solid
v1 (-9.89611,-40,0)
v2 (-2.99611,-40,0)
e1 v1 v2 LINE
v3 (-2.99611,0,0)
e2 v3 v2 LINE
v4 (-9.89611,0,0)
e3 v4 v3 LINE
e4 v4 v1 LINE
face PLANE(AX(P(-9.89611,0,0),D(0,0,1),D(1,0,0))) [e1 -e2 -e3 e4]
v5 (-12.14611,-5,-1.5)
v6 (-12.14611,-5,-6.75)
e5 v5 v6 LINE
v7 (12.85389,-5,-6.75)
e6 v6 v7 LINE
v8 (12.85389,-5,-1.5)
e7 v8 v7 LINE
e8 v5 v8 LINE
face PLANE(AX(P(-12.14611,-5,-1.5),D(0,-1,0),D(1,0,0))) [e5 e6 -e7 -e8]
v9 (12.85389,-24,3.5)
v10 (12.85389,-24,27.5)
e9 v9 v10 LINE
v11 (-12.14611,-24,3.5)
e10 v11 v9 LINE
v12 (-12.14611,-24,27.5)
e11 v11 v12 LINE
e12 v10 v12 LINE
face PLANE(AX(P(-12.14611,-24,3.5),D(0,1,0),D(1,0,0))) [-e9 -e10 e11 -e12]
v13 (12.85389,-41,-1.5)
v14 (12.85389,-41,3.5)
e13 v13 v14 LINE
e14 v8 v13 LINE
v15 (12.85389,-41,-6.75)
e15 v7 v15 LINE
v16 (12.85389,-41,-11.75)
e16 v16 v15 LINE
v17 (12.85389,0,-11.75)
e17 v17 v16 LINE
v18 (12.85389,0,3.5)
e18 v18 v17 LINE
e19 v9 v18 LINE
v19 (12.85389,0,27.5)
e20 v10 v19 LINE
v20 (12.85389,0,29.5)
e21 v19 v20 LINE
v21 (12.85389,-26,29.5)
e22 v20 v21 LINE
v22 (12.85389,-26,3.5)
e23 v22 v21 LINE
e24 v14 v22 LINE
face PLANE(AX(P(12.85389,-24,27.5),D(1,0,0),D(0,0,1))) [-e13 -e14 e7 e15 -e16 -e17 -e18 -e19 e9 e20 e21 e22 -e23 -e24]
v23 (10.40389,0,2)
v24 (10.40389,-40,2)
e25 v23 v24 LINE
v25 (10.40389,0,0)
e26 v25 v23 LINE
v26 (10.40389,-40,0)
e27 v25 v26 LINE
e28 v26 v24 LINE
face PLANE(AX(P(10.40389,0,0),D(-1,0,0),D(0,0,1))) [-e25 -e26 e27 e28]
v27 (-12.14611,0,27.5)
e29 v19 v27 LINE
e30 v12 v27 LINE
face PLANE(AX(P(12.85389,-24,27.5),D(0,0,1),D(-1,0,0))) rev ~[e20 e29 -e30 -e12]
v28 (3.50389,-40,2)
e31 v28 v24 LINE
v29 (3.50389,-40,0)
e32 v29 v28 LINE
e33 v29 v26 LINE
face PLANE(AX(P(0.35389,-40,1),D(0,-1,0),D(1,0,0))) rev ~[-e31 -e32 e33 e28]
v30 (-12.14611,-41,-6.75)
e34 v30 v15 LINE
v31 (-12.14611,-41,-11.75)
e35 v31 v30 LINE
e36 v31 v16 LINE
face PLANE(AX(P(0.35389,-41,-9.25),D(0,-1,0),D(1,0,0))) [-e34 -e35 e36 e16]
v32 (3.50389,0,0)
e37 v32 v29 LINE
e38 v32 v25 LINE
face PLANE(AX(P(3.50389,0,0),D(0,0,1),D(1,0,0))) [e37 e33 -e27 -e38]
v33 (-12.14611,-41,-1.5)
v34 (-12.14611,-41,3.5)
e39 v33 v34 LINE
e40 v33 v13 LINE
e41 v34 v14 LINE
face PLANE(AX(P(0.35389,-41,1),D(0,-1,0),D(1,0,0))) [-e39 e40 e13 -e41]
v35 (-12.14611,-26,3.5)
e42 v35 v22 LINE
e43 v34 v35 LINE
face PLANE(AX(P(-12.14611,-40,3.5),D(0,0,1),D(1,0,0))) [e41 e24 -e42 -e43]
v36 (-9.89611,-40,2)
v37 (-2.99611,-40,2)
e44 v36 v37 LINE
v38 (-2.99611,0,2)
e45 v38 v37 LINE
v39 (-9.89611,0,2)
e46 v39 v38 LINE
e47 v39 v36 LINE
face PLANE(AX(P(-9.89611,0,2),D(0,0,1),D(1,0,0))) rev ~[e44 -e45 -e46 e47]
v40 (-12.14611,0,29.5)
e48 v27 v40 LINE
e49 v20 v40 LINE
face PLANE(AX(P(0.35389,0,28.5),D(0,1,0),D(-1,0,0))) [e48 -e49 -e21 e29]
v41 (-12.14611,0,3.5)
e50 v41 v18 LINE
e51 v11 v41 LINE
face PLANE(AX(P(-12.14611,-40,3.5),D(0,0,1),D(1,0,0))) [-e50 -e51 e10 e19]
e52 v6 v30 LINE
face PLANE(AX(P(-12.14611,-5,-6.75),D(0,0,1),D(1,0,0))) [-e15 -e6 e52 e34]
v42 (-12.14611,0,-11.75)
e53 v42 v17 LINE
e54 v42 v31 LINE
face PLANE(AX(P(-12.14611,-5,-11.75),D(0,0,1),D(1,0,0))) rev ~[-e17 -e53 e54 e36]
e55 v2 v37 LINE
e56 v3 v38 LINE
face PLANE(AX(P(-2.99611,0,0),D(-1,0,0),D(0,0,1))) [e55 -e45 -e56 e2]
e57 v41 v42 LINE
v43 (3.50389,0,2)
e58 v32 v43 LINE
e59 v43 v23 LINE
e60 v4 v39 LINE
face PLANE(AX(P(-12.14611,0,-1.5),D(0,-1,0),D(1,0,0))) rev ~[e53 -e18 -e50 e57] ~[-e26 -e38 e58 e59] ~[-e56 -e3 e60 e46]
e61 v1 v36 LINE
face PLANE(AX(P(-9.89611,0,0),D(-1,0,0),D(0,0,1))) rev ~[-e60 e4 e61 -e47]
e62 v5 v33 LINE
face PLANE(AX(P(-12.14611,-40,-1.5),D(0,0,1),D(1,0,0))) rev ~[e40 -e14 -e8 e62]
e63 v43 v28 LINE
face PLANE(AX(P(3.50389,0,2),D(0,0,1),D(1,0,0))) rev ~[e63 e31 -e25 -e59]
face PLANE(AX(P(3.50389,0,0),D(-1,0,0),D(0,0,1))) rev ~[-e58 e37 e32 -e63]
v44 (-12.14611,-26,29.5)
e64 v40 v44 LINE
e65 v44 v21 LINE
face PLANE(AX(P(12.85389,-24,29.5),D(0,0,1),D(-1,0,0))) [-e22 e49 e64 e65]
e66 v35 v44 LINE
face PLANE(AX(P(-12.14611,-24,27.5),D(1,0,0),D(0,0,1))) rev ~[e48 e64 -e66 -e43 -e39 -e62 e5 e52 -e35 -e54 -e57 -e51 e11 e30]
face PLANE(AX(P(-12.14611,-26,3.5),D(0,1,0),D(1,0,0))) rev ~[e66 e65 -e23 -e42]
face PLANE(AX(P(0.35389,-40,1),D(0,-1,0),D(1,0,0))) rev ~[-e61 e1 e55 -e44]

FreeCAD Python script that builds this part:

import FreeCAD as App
import Part
import Sketcher
from FreeCAD import Vector
Q = App.Units.Quantity


def add_polygon(sketch, points):
    """Adds a closed chain of lines whose ends are joined by coincident constraints."""
    first, n = sketch.GeometryCount, len(points)
    for a, b in zip(points, points[1:] + points[:1]):
        sketch.addGeometry(Part.LineSegment(App.Vector(*a, 0), App.Vector(*b, 0)), False)
    for i in range(n):
        sketch.addConstraint(Sketcher.Constraint("Coincident", first + i, 2, first + (i + 1) % n, 1))

doc = App.newDocument("Part")
body = doc.addObject("PartDesign::Body", "Body")

sketch1 = body.newObject("Sketcher::SketchObject", "Sketch")
sketch1.AttachmentSupport = (doc.getObject("XZ_Plane"), [""])
sketch1.MapMode = "FlatFace"
add_polygon(sketch1, [(-12.1, 3.5), (-12.1, -1.5), (12.9, -1.5), (12.9, 3.5)])
add_polygon(sketch1, [(-3, 0), (-9.9, 0), (-9.9, 2), (-3, 2)])
add_polygon(sketch1, [(10.4, 0), (3.5, 0), (3.5, 2), (10.4, 2)])
sketch1.addConstraint(Sketcher.Constraint("Vertical", 0))
sketch1.addConstraint(Sketcher.Constraint("Horizontal", 1))
sketch1.addConstraint(Sketcher.Constraint("Vertical", 2))
sketch1.addConstraint(Sketcher.Constraint("Horizontal", 3))
sketch1.addConstraint(Sketcher.Constraint("Horizontal", 4))
sketch1.addConstraint(Sketcher.Constraint("Vertical", 5))
sketch1.addConstraint(Sketcher.Constraint("Horizontal", 6))
sketch1.addConstraint(Sketcher.Constraint("Vertical", 7))
sketch1.addConstraint(Sketcher.Constraint("Horizontal", 8))
sketch1.addConstraint(Sketcher.Constraint("Vertical", 9))
sketch1.addConstraint(Sketcher.Constraint("Horizontal", 10))
sketch1.addConstraint(Sketcher.Constraint("Vertical", 11))
sketch1.addConstraint(Sketcher.Constraint("PointOnObject", 4, 2, -1))
sketch1.addConstraint(Sketcher.Constraint("PointOnObject", 8, 2, -1))
sketch1.addConstraint(Sketcher.Constraint("Horizontal", 6, 2, 9, 2))
sketch1.addConstraint(Sketcher.Constraint("Equal", 6, 8))
sketch1.addConstraint(Sketcher.Constraint("DistanceX", 1, 1, 1, 2, Q("25 mm")))
sketch1.addConstraint(Sketcher.Constraint("DistanceY", 0, 2, 0, 1, Q("5 mm")))
sketch1.addConstraint(Sketcher.Constraint("DistanceY", 5, 1, 5, 2, Q("2 mm")))
sketch1.addConstraint(Sketcher.Constraint("DistanceX", 4, 2, 4, 1, Q("6.9 mm")))
sketch1.addConstraint(Sketcher.Constraint("DistanceY", 0, 2, -1, 1, Q("1.5 mm")))
sketch1.addConstraint(Sketcher.Constraint("DistanceX", 7, 2, 8, 2, Q("6.5 mm")))
sketch1.addConstraint(Sketcher.Constraint("DistanceX", 0, 2, 4, 2, Q("2.25 mm")))
sketch1.addConstraint(Sketcher.Constraint("DistanceX", 0, 2, -1, 1, Q("12.14611 mm")))
pad1 = body.newObject("PartDesign::Pad", "Pad")
pad1.Profile = sketch1
pad1.Length = 40

sketch2 = body.newObject("Sketcher::SketchObject", "Sketch001")
sketch2.AttachmentSupport = (doc.getObject("XZ_Plane"), [""])
sketch2.MapMode = "FlatFace"
sketch2.AttachmentOffset = App.Placement(Vector(0, 0, 40), App.Rotation())
add_polygon(sketch2, [(-12, 4), (-12, -2), (13, -2), (13, 4)])
sketch2.addConstraint(Sketcher.Constraint("Vertical", 0))
sketch2.addConstraint(Sketcher.Constraint("Horizontal", 1))
sketch2.addConstraint(Sketcher.Constraint("Vertical", 2))
sketch2.addConstraint(Sketcher.Constraint("Horizontal", 3))
sketch2.addConstraint(Sketcher.Constraint("DistanceX", 1, 1, 1, 2, Q("25 mm")))
sketch2.addConstraint(Sketcher.Constraint("DistanceY", 0, 2, 0, 1, Q("5 mm")))
sketch2.addConstraint(Sketcher.Constraint("DistanceY", 0, 2, -1, 1, Q("1.5 mm")))
sketch2.addConstraint(Sketcher.Constraint("DistanceX", 0, 2, -1, 1, Q("12.14611 mm")))
pad2 = body.newObject("PartDesign::Pad", "Pad001")
pad2.Profile = sketch2
pad2.Length = 1

sketch3 = body.newObject("Sketcher::SketchObject", "Sketch002")
sketch3.AttachmentSupport = (doc.getObject("XY_Plane"), [""])
sketch3.MapMode = "FlatFace"
sketch3.AttachmentOffset = App.Placement(Vector(0, 0, -1.5), App.Rotation())
add_polygon(sketch3, [(-12, -5), (-12, 0), (13, 0), (13, -5)])
sketch3.addConstraint(Sketcher.Constraint("Vertical", 0))
sketch3.addConstraint(Sketcher.Constraint("Horizontal", 1))
sketch3.addConstraint(Sketcher.Constraint("Vertical", 2))
sketch3.addConstraint(Sketcher.Constraint("Horizontal", 3))
sketch3.addConstraint(Sketcher.Constraint("PointOnObject", 0, 2, -1))
sketch3.addConstraint(Sketcher.Constraint("DistanceX", 1, 1, 1, 2, Q("25 mm")))
sketch3.addConstraint(Sketcher.Constraint("DistanceY", 0, 1, 0, 2, Q("5 mm")))
sketch3.addConstraint(Sketcher.Constraint("DistanceX", 0, 2, -1, 1, Q("12.14611 mm")))
pad3 = body.newObject("PartDesign::Pad", "Pad002")
pad3.Profile = sketch3
pad3.Length = 10.25
pad3.Reversed = True

sketch4 = body.newObject("Sketcher::SketchObject", "Sketch003")
sketch4.AttachmentSupport = (doc.getObject("XZ_Plane"), [""])
sketch4.MapMode = "FlatFace"
sketch4.AttachmentOffset = App.Placement(Vector(0, 0, 5), App.Rotation())
add_polygon(sketch4, [(-12, -7), (-12, -12), (13, -12), (13, -7)])
sketch4.addConstraint(Sketcher.Constraint("Vertical", 0))
sketch4.addConstraint(Sketcher.Constraint("Horizontal", 1))
sketch4.addConstraint(Sketcher.Constraint("Vertical", 2))
sketch4.addConstraint(Sketcher.Constraint("Horizontal", 3))
sketch4.addConstraint(Sketcher.Constraint("DistanceX", 1, 1, 1, 2, Q("25 mm")))
sketch4.addConstraint(Sketcher.Constraint("DistanceY", 0, 2, 0, 1, Q("5 mm")))
sketch4.addConstraint(Sketcher.Constraint("DistanceY", 0, 2, -1, 1, Q("11.75 mm")))
sketch4.addConstraint(Sketcher.Constraint("DistanceX", 0, 2, -1, 1, Q("12.14611 mm")))
pad4 = body.newObject("PartDesign::Pad", "Pad003")
pad4.Profile = sketch4
pad4.Length = 36

sketch5 = body.newObject("Sketcher::SketchObject", "Sketch004")
sketch5.AttachmentSupport = (doc.getObject("XY_Plane"), [""])
sketch5.MapMode = "FlatFace"
sketch5.AttachmentOffset = App.Placement(Vector(0, 0, 3.5), App.Rotation())
add_polygon(sketch5, [(-12.1, -24), (-12.1, -26), (12.9, -26), (12.9, -24)])
sketch5.addConstraint(Sketcher.Constraint("Vertical", 0))
sketch5.addConstraint(Sketcher.Constraint("Horizontal", 1))
sketch5.addConstraint(Sketcher.Constraint("Vertical", 2))
sketch5.addConstraint(Sketcher.Constraint("Horizontal", 3))
sketch5.addConstraint(Sketcher.Constraint("DistanceX", 1, 1, 1, 2, Q("25 mm")))
sketch5.addConstraint(Sketcher.Constraint("DistanceY", 0, 2, 0, 1, Q("2 mm")))
sketch5.addConstraint(Sketcher.Constraint("DistanceY", 0, 2, -1, 1, Q("26 mm")))
sketch5.addConstraint(Sketcher.Constraint("DistanceX", 0, 2, -1, 1, Q("12.14611 mm")))
pad5 = body.newObject("PartDesign::Pad", "Pad004")
pad5.Profile = sketch5
pad5.Length = 26

sketch6 = body.newObject("Sketcher::SketchObject", "Sketch005")
sketch6.AttachmentSupport = (doc.getObject("XZ_Plane"), [""])
sketch6.MapMode = "FlatFace"
sketch6.AttachmentOffset = App.Placement(Vector(0, 0, 24), App.Rotation())
add_polygon(sketch6, [(12.9, 29.5), (12.9, 27.5), (-12.1, 27.5), (-12.1, 29.5)])
sketch6.addConstraint(Sketcher.Constraint("Vertical", 0))
sketch6.addConstraint(Sketcher.Constraint("Horizontal", 1))
sketch6.addConstraint(Sketcher.Constraint("Vertical", 2))
sketch6.addConstraint(Sketcher.Constraint("Horizontal", 3))
sketch6.addConstraint(Sketcher.Constraint("DistanceX", 1, 2, 1, 1, Q("25 mm")))
sketch6.addConstraint(Sketcher.Constraint("DistanceY", 0, 2, 0, 1, Q("2 mm")))
sketch6.addConstraint(Sketcher.Constraint("DistanceY", -1, 1, 0, 2, Q("27.5 mm")))
sketch6.addConstraint(Sketcher.Constraint("DistanceX", -1, 1, 0, 2, Q("12.85389 mm")))
pad6 = body.newObject("PartDesign::Pad", "Pad005")
pad6.Profile = sketch6
pad6.Length = 24
pad6.Reversed = True

doc.recompute()
